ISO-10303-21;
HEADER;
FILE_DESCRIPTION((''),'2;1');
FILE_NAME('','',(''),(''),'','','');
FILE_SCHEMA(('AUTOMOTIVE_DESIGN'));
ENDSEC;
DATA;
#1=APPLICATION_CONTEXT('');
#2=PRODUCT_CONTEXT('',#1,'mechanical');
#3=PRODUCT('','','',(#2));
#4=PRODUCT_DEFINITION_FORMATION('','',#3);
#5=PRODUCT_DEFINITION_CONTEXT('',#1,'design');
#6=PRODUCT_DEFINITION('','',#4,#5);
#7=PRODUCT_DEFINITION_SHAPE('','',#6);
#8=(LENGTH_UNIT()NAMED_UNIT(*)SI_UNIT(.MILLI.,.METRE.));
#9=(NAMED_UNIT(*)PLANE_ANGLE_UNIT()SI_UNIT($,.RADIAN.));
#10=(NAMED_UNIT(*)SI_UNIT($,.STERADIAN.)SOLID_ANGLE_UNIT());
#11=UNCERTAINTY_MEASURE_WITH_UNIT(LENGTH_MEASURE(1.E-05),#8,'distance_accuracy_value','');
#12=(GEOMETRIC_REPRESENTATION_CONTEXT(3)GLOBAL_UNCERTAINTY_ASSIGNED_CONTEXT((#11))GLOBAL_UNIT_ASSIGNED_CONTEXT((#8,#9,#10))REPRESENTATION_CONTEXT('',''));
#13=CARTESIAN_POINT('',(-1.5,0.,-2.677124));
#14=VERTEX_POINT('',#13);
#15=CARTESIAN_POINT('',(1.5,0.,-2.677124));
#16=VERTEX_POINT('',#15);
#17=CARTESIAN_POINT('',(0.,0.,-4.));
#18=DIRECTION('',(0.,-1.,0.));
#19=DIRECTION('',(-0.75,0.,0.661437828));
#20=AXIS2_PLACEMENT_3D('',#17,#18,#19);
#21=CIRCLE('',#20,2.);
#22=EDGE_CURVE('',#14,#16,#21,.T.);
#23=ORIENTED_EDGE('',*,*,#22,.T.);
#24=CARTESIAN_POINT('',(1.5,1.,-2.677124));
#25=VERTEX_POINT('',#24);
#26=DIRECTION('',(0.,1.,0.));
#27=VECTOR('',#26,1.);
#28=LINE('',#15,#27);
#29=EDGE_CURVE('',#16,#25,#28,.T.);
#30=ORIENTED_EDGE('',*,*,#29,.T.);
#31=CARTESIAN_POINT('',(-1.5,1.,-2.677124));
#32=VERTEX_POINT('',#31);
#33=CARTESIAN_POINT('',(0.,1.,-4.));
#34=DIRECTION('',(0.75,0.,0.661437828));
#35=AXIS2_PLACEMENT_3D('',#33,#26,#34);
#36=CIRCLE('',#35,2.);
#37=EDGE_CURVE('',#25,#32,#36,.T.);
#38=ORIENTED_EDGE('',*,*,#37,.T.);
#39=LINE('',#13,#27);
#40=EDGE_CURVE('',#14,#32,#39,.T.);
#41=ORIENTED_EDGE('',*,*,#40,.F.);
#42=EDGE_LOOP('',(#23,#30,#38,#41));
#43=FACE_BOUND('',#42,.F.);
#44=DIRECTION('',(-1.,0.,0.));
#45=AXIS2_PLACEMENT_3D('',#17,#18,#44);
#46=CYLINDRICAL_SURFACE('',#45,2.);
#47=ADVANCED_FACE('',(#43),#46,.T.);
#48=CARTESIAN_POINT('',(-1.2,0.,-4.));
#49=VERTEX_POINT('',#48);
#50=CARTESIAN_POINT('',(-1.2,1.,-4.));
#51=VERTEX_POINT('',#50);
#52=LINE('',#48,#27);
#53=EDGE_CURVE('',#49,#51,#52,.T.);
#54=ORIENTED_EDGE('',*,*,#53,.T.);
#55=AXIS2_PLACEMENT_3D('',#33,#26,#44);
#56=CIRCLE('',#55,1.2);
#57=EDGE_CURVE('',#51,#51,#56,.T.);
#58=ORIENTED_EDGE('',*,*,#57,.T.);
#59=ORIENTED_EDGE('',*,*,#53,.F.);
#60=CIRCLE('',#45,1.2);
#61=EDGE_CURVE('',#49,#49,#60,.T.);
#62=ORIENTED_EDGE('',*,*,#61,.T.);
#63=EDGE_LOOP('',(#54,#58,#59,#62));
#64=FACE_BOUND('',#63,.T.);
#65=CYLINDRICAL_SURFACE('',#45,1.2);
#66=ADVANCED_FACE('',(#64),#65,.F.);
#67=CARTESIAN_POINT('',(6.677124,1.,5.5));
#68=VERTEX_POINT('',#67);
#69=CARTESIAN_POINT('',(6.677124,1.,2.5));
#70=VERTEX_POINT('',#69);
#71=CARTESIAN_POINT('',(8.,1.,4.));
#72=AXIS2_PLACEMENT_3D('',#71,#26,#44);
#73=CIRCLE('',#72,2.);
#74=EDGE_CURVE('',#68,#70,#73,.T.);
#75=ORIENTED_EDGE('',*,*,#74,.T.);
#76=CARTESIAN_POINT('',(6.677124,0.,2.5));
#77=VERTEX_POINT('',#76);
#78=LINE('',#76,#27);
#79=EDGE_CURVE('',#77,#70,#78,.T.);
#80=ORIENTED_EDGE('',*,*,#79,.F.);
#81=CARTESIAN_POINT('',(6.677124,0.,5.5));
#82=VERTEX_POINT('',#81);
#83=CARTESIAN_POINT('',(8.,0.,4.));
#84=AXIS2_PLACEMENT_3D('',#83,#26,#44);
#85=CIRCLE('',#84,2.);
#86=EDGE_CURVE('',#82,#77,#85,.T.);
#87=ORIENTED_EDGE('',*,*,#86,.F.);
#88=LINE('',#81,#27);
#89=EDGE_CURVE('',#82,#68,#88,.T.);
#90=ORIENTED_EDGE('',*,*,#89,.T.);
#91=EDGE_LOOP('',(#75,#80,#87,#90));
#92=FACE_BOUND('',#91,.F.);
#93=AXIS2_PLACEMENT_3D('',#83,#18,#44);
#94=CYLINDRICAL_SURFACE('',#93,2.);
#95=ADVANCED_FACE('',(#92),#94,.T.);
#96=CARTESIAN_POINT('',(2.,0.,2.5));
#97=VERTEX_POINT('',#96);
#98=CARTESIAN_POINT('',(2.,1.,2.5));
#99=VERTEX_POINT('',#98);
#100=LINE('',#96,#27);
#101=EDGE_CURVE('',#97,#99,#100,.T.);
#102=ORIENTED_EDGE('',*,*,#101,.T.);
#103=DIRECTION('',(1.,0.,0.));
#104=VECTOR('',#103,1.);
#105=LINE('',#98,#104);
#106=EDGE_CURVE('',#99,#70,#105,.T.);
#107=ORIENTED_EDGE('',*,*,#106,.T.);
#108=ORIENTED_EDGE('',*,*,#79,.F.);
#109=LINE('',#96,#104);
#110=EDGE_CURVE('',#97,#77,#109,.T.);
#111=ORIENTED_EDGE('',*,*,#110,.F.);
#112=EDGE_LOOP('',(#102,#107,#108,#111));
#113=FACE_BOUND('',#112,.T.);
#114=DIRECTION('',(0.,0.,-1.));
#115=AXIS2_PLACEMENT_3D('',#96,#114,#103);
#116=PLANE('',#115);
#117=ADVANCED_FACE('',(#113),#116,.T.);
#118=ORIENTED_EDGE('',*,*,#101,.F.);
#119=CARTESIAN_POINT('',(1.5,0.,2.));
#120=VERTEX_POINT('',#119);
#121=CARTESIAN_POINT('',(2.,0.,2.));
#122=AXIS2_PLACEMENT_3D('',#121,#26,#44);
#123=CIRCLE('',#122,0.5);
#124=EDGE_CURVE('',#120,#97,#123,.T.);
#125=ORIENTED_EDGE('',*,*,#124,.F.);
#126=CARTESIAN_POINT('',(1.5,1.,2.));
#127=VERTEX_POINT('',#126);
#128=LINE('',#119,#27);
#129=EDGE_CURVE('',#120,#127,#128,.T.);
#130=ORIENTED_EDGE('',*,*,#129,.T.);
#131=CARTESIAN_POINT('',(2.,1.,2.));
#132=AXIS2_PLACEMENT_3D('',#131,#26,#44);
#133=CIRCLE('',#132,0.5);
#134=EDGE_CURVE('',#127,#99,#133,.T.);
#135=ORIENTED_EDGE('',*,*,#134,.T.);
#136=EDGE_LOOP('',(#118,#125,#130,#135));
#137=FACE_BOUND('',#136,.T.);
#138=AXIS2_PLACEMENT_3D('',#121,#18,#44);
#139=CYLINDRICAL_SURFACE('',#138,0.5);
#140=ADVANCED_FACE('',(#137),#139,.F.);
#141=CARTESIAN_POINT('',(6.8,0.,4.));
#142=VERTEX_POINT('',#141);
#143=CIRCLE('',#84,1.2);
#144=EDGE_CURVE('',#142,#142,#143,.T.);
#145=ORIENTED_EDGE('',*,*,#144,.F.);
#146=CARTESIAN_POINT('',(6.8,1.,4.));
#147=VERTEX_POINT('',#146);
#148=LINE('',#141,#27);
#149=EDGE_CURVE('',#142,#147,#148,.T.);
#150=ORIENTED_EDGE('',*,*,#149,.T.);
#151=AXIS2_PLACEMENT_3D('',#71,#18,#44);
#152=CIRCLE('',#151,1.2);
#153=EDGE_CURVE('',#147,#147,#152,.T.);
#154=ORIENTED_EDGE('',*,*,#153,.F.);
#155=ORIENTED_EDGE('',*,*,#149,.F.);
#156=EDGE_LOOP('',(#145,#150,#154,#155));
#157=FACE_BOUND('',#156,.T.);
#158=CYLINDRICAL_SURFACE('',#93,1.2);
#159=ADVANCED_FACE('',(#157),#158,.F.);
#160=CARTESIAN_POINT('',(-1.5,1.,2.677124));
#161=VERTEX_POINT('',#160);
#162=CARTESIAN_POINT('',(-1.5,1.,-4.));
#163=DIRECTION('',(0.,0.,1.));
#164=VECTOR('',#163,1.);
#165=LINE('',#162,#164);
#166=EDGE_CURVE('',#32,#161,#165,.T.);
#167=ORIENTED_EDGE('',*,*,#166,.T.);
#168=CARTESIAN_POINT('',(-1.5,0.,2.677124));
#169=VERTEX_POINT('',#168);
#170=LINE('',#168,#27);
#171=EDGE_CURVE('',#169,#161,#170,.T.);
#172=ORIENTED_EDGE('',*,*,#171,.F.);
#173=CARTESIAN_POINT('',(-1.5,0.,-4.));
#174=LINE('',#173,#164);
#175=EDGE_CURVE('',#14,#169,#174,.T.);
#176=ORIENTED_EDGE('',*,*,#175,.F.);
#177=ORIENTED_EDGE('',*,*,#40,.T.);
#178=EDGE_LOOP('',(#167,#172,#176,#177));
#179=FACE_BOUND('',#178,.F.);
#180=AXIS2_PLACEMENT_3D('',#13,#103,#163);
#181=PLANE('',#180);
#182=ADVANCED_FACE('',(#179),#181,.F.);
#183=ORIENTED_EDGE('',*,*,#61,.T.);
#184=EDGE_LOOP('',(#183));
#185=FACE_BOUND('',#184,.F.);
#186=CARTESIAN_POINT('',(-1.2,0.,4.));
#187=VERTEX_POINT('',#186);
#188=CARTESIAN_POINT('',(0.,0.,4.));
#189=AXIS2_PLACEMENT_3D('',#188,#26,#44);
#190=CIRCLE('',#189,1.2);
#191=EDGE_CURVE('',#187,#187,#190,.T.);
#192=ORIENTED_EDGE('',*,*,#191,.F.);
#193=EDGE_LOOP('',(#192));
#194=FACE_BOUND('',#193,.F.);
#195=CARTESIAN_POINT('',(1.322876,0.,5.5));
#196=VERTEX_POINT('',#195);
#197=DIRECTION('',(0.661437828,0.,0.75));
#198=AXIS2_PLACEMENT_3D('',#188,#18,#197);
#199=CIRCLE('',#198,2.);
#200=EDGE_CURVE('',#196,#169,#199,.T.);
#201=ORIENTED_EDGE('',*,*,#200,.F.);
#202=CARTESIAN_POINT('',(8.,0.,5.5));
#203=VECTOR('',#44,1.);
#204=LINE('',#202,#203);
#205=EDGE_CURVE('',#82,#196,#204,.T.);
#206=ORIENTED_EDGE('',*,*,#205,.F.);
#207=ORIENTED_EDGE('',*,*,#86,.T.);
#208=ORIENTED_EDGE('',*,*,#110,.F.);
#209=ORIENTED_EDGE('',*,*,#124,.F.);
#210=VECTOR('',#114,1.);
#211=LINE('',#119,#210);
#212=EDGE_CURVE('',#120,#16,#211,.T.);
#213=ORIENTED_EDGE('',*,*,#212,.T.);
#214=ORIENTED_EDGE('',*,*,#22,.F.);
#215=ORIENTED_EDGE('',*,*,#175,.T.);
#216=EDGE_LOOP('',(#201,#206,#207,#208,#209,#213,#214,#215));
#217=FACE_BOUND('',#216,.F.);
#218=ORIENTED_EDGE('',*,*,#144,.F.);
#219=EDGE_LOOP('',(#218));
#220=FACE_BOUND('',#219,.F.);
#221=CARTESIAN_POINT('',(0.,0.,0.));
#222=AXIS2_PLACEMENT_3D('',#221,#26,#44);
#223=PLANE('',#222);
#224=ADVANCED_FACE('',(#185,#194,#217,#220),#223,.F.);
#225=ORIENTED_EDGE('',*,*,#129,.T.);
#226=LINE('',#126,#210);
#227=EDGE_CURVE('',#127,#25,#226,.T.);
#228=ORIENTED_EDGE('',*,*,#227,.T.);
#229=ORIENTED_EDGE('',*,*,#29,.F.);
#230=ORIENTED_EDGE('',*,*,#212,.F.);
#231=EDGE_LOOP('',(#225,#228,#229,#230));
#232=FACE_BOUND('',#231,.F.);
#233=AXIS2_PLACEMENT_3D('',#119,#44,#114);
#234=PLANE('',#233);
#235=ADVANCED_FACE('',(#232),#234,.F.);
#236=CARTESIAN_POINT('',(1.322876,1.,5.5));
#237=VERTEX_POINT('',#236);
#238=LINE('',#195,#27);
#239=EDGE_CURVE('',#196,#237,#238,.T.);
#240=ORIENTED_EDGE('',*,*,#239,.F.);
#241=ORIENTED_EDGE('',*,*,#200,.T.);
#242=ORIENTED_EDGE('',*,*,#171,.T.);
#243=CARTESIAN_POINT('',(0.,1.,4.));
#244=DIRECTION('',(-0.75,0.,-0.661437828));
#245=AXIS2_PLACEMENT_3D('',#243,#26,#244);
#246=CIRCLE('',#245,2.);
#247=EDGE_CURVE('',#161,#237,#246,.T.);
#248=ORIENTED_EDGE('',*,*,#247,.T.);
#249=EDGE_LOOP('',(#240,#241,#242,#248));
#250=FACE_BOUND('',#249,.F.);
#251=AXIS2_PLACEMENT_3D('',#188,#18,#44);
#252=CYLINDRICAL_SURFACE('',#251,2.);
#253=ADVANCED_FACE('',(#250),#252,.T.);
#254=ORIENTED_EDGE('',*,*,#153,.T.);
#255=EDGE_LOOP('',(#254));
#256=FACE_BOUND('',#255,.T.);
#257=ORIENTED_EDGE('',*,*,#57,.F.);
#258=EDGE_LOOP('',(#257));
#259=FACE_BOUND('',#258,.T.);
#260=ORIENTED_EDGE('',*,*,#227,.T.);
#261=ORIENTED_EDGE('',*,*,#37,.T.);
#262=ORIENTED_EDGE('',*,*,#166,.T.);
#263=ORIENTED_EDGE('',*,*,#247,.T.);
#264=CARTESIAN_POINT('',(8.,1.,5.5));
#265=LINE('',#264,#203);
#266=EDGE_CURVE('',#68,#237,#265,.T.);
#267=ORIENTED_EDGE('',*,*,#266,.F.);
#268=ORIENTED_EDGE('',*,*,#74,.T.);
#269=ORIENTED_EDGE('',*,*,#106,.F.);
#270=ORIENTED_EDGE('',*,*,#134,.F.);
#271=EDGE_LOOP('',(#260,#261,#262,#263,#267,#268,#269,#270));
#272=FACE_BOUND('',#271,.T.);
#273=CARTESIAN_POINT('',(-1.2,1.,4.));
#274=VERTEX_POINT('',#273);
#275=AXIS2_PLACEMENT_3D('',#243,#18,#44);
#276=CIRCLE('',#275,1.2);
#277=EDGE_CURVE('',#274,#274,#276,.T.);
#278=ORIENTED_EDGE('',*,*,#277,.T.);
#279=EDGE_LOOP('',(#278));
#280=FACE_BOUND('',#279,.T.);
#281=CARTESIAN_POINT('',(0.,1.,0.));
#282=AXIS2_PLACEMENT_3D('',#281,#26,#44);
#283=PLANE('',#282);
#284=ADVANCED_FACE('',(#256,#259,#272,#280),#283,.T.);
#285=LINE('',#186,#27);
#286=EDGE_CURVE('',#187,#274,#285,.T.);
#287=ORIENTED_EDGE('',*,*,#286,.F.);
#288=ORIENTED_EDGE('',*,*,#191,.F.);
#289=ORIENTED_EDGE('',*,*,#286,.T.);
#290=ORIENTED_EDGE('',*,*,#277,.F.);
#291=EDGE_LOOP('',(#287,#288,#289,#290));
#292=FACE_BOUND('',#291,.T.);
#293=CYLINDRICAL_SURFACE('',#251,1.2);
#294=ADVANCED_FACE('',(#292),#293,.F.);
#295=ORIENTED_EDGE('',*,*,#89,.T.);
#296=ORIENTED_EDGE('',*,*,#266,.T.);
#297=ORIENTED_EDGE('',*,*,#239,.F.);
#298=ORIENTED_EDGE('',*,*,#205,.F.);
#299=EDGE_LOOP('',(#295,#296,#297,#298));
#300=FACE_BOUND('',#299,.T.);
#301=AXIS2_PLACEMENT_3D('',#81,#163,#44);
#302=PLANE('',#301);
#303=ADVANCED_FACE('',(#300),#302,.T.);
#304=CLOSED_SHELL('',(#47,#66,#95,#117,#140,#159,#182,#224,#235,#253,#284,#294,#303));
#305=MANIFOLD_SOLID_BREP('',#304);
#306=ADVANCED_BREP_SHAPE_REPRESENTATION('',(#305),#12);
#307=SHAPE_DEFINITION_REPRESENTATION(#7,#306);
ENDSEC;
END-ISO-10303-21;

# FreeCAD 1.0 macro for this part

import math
import FreeCAD as App
import Part
import Sketcher

V = App.Vector

doc = App.newDocument("Part")
body = doc.addObject("PartDesign::Body", "Body")

sketch1 = doc.addObject("Sketcher::SketchObject", "Sketch")
body.addObject(sketch1)
sketch1.AttachmentSupport = (doc.XZ_Plane, [""])
sketch1.MapMode = "FlatFace"
sketch1.addGeometry([
    Part.ArcOfCircle(Part.Circle(V(0, -4, 0), V(0, 0, 1), 2), math.radians(139), math.radians(401)),
    Part.LineSegment(V(-1.5, -2.7, 0), V(-1.5, 2.7, 0)),
    Part.ArcOfCircle(Part.Circle(V(0, 4, 0), V(0, 0, 1), 2), math.radians(49), math.radians(221)),
    Part.LineSegment(V(1.3, 5.5, 0), V(6.7, 5.5, 0)),
    Part.ArcOfCircle(Part.Circle(V(8, 4, 0), V(0, 0, 1), 2), math.radians(-131), math.radians(131)),
    Part.LineSegment(V(6.7, 2.5, 0), V(2, 2.5, 0)),
    Part.ArcOfCircle(Part.Circle(V(2, 2, 0), V(0, 0, 1), 0.5), math.radians(90), math.radians(180)),
    Part.LineSegment(V(1.5, 2, 0), V(1.5, -2.7, 0)),
    Part.Circle(V(0, -4, 0), V(0, 0, 1), 1.2),
    Part.Circle(V(8, 4, 0), V(0, 0, 1), 1.2),
    Part.Circle(V(0, 4, 0), V(0, 0, 1), 1.2),
], False)
sketch1.addConstraint([
    Sketcher.Constraint("Coincident", 0, 1, 1, 1),
    Sketcher.Constraint("Coincident", 1, 2, 2, 2),
    Sketcher.Constraint("Coincident", 2, 1, 3, 1),
    Sketcher.Constraint("Coincident", 3, 2, 4, 2),
    Sketcher.Constraint("Coincident", 4, 1, 5, 1),
    Sketcher.Constraint("Tangent", 5, 2, 6, 1),
    Sketcher.Constraint("Tangent", 6, 2, 7, 1),
    Sketcher.Constraint("Coincident", 7, 2, 0, 2),
    Sketcher.Constraint("Vertical", 1),
    Sketcher.Constraint("Horizontal", 3),
    Sketcher.Constraint("Horizontal", 5),
    Sketcher.Constraint("Vertical", 7),
    Sketcher.Constraint("Coincident", 8, 3, 0, 3),
    Sketcher.Constraint("Coincident", 9, 3, 4, 3),
    Sketcher.Constraint("Coincident", 10, 3, 2, 3),
    Sketcher.Constraint("Equal", 0, 2),
    Sketcher.Constraint("Equal", 2, 4),
    Sketcher.Constraint("Equal", 8, 9),
    Sketcher.Constraint("Equal", 9, 10),
    Sketcher.Constraint("Symmetric", 0, 3, 2, 3, -1, 1),
    Sketcher.Constraint("Symmetric", 0, 1, 7, 2, -2),
    Sketcher.Constraint("Horizontal", 2, 3, 4, 3),
    Sketcher.Constraint("Vertical", 3, 2, 4, 1),
    Sketcher.Constraint("Equal", 3, 1),
    Sketcher.Constraint("Equal", 5, 7),
    Sketcher.Constraint("Radius", 0, 2.0),
    Sketcher.Constraint("Diameter", 8, 2.4),
    Sketcher.Constraint("Radius", 6, 0.5),
    Sketcher.Constraint("DistanceY", 0, 3, -1, 1, 4.0),
    Sketcher.Constraint("DistanceY", 4, 1, 3, 2, 3.0),
])
pad1 = doc.addObject("PartDesign::Pad", "Pad")
body.addObject(pad1)
pad1.Profile = sketch1
pad1.Length = 1
pad1.Reversed = True

doc.recompute()
